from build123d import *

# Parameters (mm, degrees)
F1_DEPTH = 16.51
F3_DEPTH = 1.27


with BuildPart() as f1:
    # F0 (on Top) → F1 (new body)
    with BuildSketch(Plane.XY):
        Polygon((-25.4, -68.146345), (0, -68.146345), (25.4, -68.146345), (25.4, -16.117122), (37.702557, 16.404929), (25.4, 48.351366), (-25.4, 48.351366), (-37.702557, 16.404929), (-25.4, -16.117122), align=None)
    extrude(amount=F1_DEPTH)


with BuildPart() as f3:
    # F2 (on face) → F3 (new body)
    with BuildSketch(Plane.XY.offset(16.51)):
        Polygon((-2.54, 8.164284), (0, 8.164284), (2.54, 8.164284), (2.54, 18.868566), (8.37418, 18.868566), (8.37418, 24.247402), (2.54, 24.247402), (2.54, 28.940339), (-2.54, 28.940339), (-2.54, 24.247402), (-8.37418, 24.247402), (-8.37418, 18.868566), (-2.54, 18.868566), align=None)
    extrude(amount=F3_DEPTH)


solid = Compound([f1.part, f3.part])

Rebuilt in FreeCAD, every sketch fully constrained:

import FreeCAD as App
import Part
import Sketcher
from FreeCAD import Vector
Q = App.Units.Quantity


def add_polygon(sketch, points):
    """Adds a closed chain of lines whose ends are joined by coincident constraints."""
    first, n = sketch.GeometryCount, len(points)
    for a, b in zip(points, points[1:] + points[:1]):
        sketch.addGeometry(Part.LineSegment(App.Vector(*a, 0), App.Vector(*b, 0)), False)
    for i in range(n):
        sketch.addConstraint(Sketcher.Constraint("Coincident", first + i, 2, first + (i + 1) % n, 1))

doc = App.newDocument("Part")
body = doc.addObject("PartDesign::Body", "Body")

# Sketch on XY plane
sketch1 = body.newObject("Sketcher::SketchObject", "Sketch")
sketch1.AttachmentSupport = (doc.getObject("XY_Plane"), [""])
sketch1.MapMode = "FlatFace"
add_polygon(sketch1, [(-25, -68), (25, -68), (25, -16), (38, 16), (25, 48), (-25, 48), (-38, 16), (-25, -16)])  # lines 0-7
sketch1.addConstraint([
    Sketcher.Constraint("Horizontal", 0),
    Sketcher.Constraint("Vertical", 1),
    Sketcher.Constraint("Horizontal", 4),
    Sketcher.Constraint("Vertical", 7),
    Sketcher.Constraint("Symmetric", 2, 2, 5, 2, -2),
    Sketcher.Constraint("Symmetric", 1, 2, 6, 2, -2),
    Sketcher.Constraint("Vertical", 1, 2, 3, 2),
    Sketcher.Constraint("Vertical", 4, 2, 6, 2),
    Sketcher.Constraint("DistanceX", 0, 1, 0, 2, Q("2 in")),
    Sketcher.Constraint("Distance", 3, 34.23343),
    Sketcher.Constraint("DistanceY", 1, 1, 1, 2, 52.029223),
    Sketcher.Constraint("DistanceY", 1, 2, -1, 1, 16.117122),
    Sketcher.Constraint("DistanceY", -1, 1, 2, 2, 16.404929),
    Sketcher.Constraint("DistanceY", 0, 2, 3, 2, 116.497711),
])
pad1 = body.newObject("PartDesign::Pad", "Pad")
pad1.Profile = sketch1
pad1.Length = Q("0.65 in")
body2 = doc.addObject("PartDesign::Body", "Body001")

# Sketch on XY plane
sketch2 = body2.newObject("Sketcher::SketchObject", "Sketch001")
sketch2.AttachmentSupport = (doc.getObject("XY_Plane001"), [""])
sketch2.MapMode = "FlatFace"
sketch2.AttachmentOffset = App.Placement(Vector(0, 0, 0.65 * 25.4), App.Rotation())
add_polygon(sketch2, [(-2.5, 8.2), (2.5, 8.2), (2.5, 18.9), (8.4, 18.9), (8.4, 24.2), (2.5, 24.2), (2.5, 28.9), (-2.5, 28.9), (-2.5, 24.2), (-8.4, 24.2), (-8.4, 18.9), (-2.5, 18.9)])  # lines 0-11
sketch2.addConstraint([
    Sketcher.Constraint("Horizontal", 0),
    Sketcher.Constraint("Vertical", 1),
    Sketcher.Constraint("Horizontal", 2),
    Sketcher.Constraint("Vertical", 3),
    Sketcher.Constraint("Horizontal", 4),
    Sketcher.Constraint("Vertical", 5),
    Sketcher.Constraint("Horizontal", 6),
    Sketcher.Constraint("Vertical", 7),
    Sketcher.Constraint("Horizontal", 8),
    Sketcher.Constraint("Vertical", 9),
    Sketcher.Constraint("Horizontal", 10),
    Sketcher.Constraint("Vertical", 11),
    Sketcher.Constraint("Symmetric", 4, 2, 7, 2, -2),
    Sketcher.Constraint("Symmetric", 2, 2, 9, 2, -2),
    Sketcher.Constraint("Vertical", 1, 2, 4, 2),
    Sketcher.Constraint("Vertical", 7, 2, 10, 2),
    Sketcher.Constraint("DistanceX", 0, 1, 0, 2, Q("0.2 in")),
    Sketcher.Constraint("DistanceX", 2, 1, 2, 2, 5.83418),
    Sketcher.Constraint("DistanceY", 1, 1, 1, 2, 10.704282),
    Sketcher.Constraint("DistanceY", 3, 1, 3, 2, 5.378836),
    Sketcher.Constraint("DistanceY", 5, 1, 5, 2, 4.692937),
    Sketcher.Constraint("DistanceY", -1, 1, 5, 2, 28.940339),
])
pad2 = body2.newObject("PartDesign::Pad", "Pad001")
pad2.Profile = sketch2
pad2.Length = Q("0.05 in")

doc.recompute()
